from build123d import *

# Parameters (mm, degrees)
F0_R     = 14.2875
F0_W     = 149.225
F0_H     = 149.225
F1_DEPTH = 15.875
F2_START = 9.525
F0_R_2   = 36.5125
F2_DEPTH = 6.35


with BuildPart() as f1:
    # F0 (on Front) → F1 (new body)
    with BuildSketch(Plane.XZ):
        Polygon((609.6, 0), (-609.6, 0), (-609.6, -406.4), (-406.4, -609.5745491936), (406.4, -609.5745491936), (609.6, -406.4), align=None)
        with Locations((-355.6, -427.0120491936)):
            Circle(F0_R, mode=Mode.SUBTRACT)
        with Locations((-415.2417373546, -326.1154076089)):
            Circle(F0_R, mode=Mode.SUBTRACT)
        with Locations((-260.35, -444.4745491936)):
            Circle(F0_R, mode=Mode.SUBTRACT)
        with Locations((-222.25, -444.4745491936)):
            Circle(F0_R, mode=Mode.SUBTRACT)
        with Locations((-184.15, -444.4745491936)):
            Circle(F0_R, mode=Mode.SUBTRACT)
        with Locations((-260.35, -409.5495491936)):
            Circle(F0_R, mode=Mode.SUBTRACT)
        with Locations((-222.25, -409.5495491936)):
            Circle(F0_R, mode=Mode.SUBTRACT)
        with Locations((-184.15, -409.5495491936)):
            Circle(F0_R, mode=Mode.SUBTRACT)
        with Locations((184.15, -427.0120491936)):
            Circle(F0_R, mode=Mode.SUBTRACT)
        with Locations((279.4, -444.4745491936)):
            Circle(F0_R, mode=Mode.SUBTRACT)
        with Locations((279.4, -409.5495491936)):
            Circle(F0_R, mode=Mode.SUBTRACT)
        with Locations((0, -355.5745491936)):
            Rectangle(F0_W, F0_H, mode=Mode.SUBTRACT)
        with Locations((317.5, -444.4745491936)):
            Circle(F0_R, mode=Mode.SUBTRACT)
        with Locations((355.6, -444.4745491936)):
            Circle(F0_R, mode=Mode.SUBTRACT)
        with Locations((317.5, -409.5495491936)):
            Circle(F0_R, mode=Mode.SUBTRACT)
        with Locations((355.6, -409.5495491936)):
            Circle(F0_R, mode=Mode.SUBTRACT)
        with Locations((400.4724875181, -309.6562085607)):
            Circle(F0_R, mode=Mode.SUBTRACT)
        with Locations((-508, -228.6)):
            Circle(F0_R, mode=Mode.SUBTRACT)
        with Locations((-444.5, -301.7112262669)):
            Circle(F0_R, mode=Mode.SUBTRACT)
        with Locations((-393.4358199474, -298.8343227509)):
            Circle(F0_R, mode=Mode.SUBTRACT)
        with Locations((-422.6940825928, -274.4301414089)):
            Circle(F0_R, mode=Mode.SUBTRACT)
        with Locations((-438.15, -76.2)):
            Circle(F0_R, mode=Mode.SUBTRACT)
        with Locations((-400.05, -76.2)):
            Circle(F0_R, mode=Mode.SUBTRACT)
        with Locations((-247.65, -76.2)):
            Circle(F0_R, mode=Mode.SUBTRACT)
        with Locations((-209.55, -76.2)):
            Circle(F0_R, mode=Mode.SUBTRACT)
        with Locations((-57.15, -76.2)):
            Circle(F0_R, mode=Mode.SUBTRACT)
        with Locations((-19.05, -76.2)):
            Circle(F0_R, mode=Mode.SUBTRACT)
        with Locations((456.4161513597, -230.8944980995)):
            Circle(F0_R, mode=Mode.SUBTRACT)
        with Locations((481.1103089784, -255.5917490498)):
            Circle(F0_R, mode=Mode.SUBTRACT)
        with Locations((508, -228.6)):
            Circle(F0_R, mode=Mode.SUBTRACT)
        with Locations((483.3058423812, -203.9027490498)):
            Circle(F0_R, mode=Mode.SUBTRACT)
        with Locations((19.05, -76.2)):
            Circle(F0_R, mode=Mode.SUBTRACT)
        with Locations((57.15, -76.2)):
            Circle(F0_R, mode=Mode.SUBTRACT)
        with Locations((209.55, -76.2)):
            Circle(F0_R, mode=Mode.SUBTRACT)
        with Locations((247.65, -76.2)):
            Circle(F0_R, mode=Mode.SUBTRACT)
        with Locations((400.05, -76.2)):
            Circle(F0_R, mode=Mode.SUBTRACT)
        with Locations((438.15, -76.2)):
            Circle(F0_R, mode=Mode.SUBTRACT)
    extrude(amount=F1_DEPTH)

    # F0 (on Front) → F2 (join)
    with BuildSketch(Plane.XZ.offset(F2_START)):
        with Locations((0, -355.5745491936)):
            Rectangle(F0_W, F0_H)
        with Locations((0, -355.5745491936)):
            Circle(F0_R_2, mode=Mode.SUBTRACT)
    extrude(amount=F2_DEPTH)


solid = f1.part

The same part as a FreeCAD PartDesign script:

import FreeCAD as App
import Part
import Sketcher

V = App.Vector
Q = App.Units.Quantity


def add_polygon(sketch, points):
    """Adds a closed chain of lines whose ends are joined by coincident constraints."""
    first, n = sketch.GeometryCount, len(points)
    for a, b in zip(points, points[1:] + points[:1]):
        sketch.addGeometry(Part.LineSegment(App.Vector(*a, 0), App.Vector(*b, 0)), False)
    for i in range(n):
        sketch.addConstraint(Sketcher.Constraint("Coincident", first + i, 2, first + (i + 1) % n, 1))

doc = App.newDocument("Part")
params = doc.addObject("Spreadsheet::Sheet", "Params")
for row, (alias, value) in enumerate([
    ("sketch1_width", "48 in"),
    ("sketch1_width2", "32 in"),
    ("sketch1_height", "16 in"),
    ("sketch1_diameter", "1.125 in"),
    ("sketch1_width3", "5.875 in"),
    ("pad1_length", "0.625 in"),
    ("sketch2_diameter", "2.875 in"),
    ("sketch2_width", "5.875 in"),
    ("pad2_length", "0.25 in"),
], start=1):
    params.set(f"A{row}", alias)
    params.set(f"B{row}", "=" + value)
    params.setAlias(f"B{row}", alias)

body = doc.addObject("PartDesign::Body", "Body")

sketch1 = body.newObject("Sketcher::SketchObject", "Sketch")
sketch1.AttachmentSupport = (doc.getObject("XZ_Plane"), [""])
sketch1.MapMode = "FlatFace"
add_polygon(sketch1, [(610, 0), (-610, 0), (-610, -406), (-406, -610), (406, -610), (610, -406)])
sketch1.addGeometry(Part.Circle(V(-356, -427, 0), V(0, 0, 1), 14), False)
sketch1.addGeometry(Part.Circle(V(-260, -444, 0), V(0, 0, 1), 14), False)
sketch1.addGeometry(Part.Circle(V(-222, -444, 0), V(0, 0, 1), 14), False)
sketch1.addGeometry(Part.Circle(V(-184, -444, 0), V(0, 0, 1), 14), False)
sketch1.addGeometry(Part.Circle(V(-260, -410, 0), V(0, 0, 1), 14), False)
sketch1.addGeometry(Part.Circle(V(-222, -410, 0), V(0, 0, 1), 14), False)
sketch1.addGeometry(Part.Circle(V(-184, -410, 0), V(0, 0, 1), 14), False)
sketch1.addGeometry(Part.Circle(V(-415, -326, 0), V(0, 0, 1), 14), False)
sketch1.addGeometry(Part.Circle(V(-444, -302, 0), V(0, 0, 1), 14), False)
sketch1.addGeometry(Part.Circle(V(-393, -299, 0), V(0, 0, 1), 14), False)
sketch1.addGeometry(Part.Circle(V(-423, -274, 0), V(0, 0, 1), 14), False)
sketch1.addGeometry(Part.Circle(V(184, -427, 0), V(0, 0, 1), 14), False)
sketch1.addGeometry(Part.Circle(V(279, -444, 0), V(0, 0, 1), 14), False)
sketch1.addGeometry(Part.Circle(V(318, -444, 0), V(0, 0, 1), 14), False)
sketch1.addGeometry(Part.Circle(V(356, -444, 0), V(0, 0, 1), 14), False)
sketch1.addGeometry(Part.Circle(V(279, -410, 0), V(0, 0, 1), 14), False)
sketch1.addGeometry(Part.Circle(V(318, -410, 0), V(0, 0, 1), 14), False)
sketch1.addGeometry(Part.Circle(V(356, -410, 0), V(0, 0, 1), 14), False)
add_polygon(sketch1, [(75, -430), (-75, -430), (-75, -281), (75, -281)])
sketch1.addGeometry(Part.Circle(V(400, -310, 0), V(0, 0, 1), 14), False)
sketch1.addGeometry(Part.Circle(V(-508, -229, 0), V(0, 0, 1), 14), False)
sketch1.addGeometry(Part.Circle(V(-438, -76, 0), V(0, 0, 1), 14), False)
sketch1.addGeometry(Part.Circle(V(-400, -76, 0), V(0, 0, 1), 14), False)
sketch1.addGeometry(Part.Circle(V(-248, -76, 0), V(0, 0, 1), 14), False)
sketch1.addGeometry(Part.Circle(V(-210, -76, 0), V(0, 0, 1), 14), False)
sketch1.addGeometry(Part.Circle(V(-57, -76, 0), V(0, 0, 1), 14), False)
sketch1.addGeometry(Part.Circle(V(-19, -76, 0), V(0, 0, 1), 14), False)
sketch1.addGeometry(Part.Circle(V(481, -256, 0), V(0, 0, 1), 14), False)
sketch1.addGeometry(Part.Circle(V(456, -231, 0), V(0, 0, 1), 14), False)
sketch1.addGeometry(Part.Circle(V(508, -229, 0), V(0, 0, 1), 14), False)
sketch1.addGeometry(Part.Circle(V(483, -204, 0), V(0, 0, 1), 14), False)
sketch1.addGeometry(Part.Circle(V(19, -76, 0), V(0, 0, 1), 14), False)
sketch1.addGeometry(Part.Circle(V(57, -76, 0), V(0, 0, 1), 14), False)
sketch1.addGeometry(Part.Circle(V(210, -76, 0), V(0, 0, 1), 14), False)
sketch1.addGeometry(Part.Circle(V(248, -76, 0), V(0, 0, 1), 14), False)
sketch1.addGeometry(Part.Circle(V(400, -76, 0), V(0, 0, 1), 14), False)
sketch1.addGeometry(Part.Circle(V(438, -76, 0), V(0, 0, 1), 14), False)
sketch1.addConstraint(Sketcher.Constraint("Horizontal", 0))
sketch1.addConstraint(Sketcher.Constraint("Vertical", 1))
sketch1.addConstraint(Sketcher.Constraint("Horizontal", 3))
sketch1.addConstraint(Sketcher.Constraint("Vertical", 5))
sketch1.addConstraint(Sketcher.Constraint("Horizontal", 24))
sketch1.addConstraint(Sketcher.Constraint("Vertical", 25))
sketch1.addConstraint(Sketcher.Constraint("Horizontal", 26))
sketch1.addConstraint(Sketcher.Constraint("Vertical", 27))
sketch1.addConstraint(Sketcher.Constraint("Equal", 6, 7))
sketch1.addConstraint(Sketcher.Constraint("Equal", 7, 8))
sketch1.addConstraint(Sketcher.Constraint("Equal", 8, 9))
sketch1.addConstraint(Sketcher.Constraint("Equal", 9, 10))
sketch1.addConstraint(Sketcher.Constraint("Equal", 10, 11))
sketch1.addConstraint(Sketcher.Constraint("Equal", 11, 12))
sketch1.addConstraint(Sketcher.Constraint("Equal", 12, 13))
sketch1.addConstraint(Sketcher.Constraint("Equal", 13, 14))
sketch1.addConstraint(Sketcher.Constraint("Equal", 14, 15))
sketch1.addConstraint(Sketcher.Constraint("Equal", 15, 16))
sketch1.addConstraint(Sketcher.Constraint("Equal", 16, 17))
sketch1.addConstraint(Sketcher.Constraint("Equal", 17, 18))
sketch1.addConstraint(Sketcher.Constraint("Equal", 18, 19))
sketch1.addConstraint(Sketcher.Constraint("Equal", 19, 20))
sketch1.addConstraint(Sketcher.Constraint("Equal", 20, 21))
sketch1.addConstraint(Sketcher.Constraint("Equal", 21, 22))
sketch1.addConstraint(Sketcher.Constraint("Equal", 22, 23))
sketch1.addConstraint(Sketcher.Constraint("Equal", 23, 28))
sketch1.addConstraint(Sketcher.Constraint("Equal", 28, 29))
sketch1.addConstraint(Sketcher.Constraint("Equal", 29, 30))
sketch1.addConstraint(Sketcher.Constraint("Equal", 30, 31))
sketch1.addConstraint(Sketcher.Constraint("Equal", 31, 32))
sketch1.addConstraint(Sketcher.Constraint("Equal", 32, 33))
sketch1.addConstraint(Sketcher.Constraint("Equal", 33, 34))
sketch1.addConstraint(Sketcher.Constraint("Equal", 34, 35))
sketch1.addConstraint(Sketcher.Constraint("Equal", 35, 36))
sketch1.addConstraint(Sketcher.Constraint("Equal", 36, 37))
sketch1.addConstraint(Sketcher.Constraint("Equal", 37, 38))
sketch1.addConstraint(Sketcher.Constraint("Equal", 38, 39))
sketch1.addConstraint(Sketcher.Constraint("Equal", 39, 40))
sketch1.addConstraint(Sketcher.Constraint("Equal", 40, 41))
sketch1.addConstraint(Sketcher.Constraint("Equal", 41, 42))
sketch1.addConstraint(Sketcher.Constraint("Equal", 42, 43))
sketch1.addConstraint(Sketcher.Constraint("Equal", 43, 44))
sketch1.addConstraint(Sketcher.Constraint("Equal", 44, 45))
sketch1.addConstraint(Sketcher.Constraint("Symmetric", 0, 2, 5, 2, -1, 1))
sketch1.addConstraint(Sketcher.Constraint("Symmetric", 29, 3, 38, 3, -2))
sketch1.addConstraint(Sketcher.Constraint("Symmetric", 35, 3, 40, 3, -2))
sketch1.addConstraint(Sketcher.Constraint("Symmetric", 34, 3, 41, 3, -2))
sketch1.addConstraint(Sketcher.Constraint("Symmetric", 33, 3, 42, 3, -2))
sketch1.addConstraint(Sketcher.Constraint("Symmetric", 32, 3, 43, 3, -2))
sketch1.addConstraint(Sketcher.Constraint("Symmetric", 31, 3, 44, 3, -2))
sketch1.addConstraint(Sketcher.Constraint("Symmetric", 30, 3, 45, 3, -2))
sketch1.addConstraint(Sketcher.Constraint("Horizontal", 7, 3, 8, 3))
sketch1.addConstraint(Sketcher.Constraint("Horizontal", 8, 3, 9, 3))
sketch1.addConstraint(Sketcher.Constraint("Horizontal", 10, 3, 11, 3))
sketch1.addConstraint(Sketcher.Constraint("Horizontal", 11, 3, 12, 3))
sketch1.addConstraint(Sketcher.Constraint("Horizontal", 6, 3, 17, 3))
sketch1.addConstraint(Sketcher.Constraint("Horizontal", 9, 3, 18, 3))
sketch1.addConstraint(Sketcher.Constraint("Horizontal", 18, 3, 19, 3))
sketch1.addConstraint(Sketcher.Constraint("Horizontal", 19, 3, 20, 3))
sketch1.addConstraint(Sketcher.Constraint("Horizontal", 12, 3, 21, 3))
sketch1.addConstraint(Sketcher.Constraint("Horizontal", 21, 3, 22, 3))
sketch1.addConstraint(Sketcher.Constraint("Horizontal", 22, 3, 23, 3))
sketch1.addConstraint(Sketcher.Constraint("Horizontal", 30, 3, 31, 3))
sketch1.addConstraint(Sketcher.Constraint("Horizontal", 31, 3, 32, 3))
sketch1.addConstraint(Sketcher.Constraint("Horizontal", 32, 3, 33, 3))
sketch1.addConstraint(Sketcher.Constraint("Horizontal", 33, 3, 34, 3))
sketch1.addConstraint(Sketcher.Constraint("Horizontal", 34, 3, 35, 3))
sketch1.addConstraint(Sketcher.Constraint("Horizontal", 1, 2, 4, 2))
sketch1.addConstraint(Sketcher.Constraint("Vertical", 7, 3, 10, 3))
sketch1.addConstraint(Sketcher.Constraint("Vertical", 8, 3, 11, 3))
sketch1.addConstraint(Sketcher.Constraint("Vertical", 9, 3, 12, 3))
sketch1.addConstraint(Sketcher.Constraint("Vertical", 18, 3, 21, 3))
sketch1.addConstraint(Sketcher.Constraint("Vertical", 19, 3, 22, 3))
sketch1.addConstraint(Sketcher.Constraint("Vertical", 20, 3, 23, 3))
sketch1.addConstraint(Sketcher.Constraint("Equal", 26, 25))
sketch1.addConstraint(Sketcher.Constraint("Equal", 2, 4))
sketch1.addConstraint(Sketcher.Constraint("DistanceX", 0, 2, 0, 1, Q("48 in")))
sketch1.addConstraint(Sketcher.Constraint("DistanceX", 3, 1, 3, 2, Q("32 in")))
sketch1.addConstraint(Sketcher.Constraint("DistanceY", 1, 2, 1, 1, Q("16 in")))
sketch1.addConstraint(Sketcher.Constraint("Diameter", 6, Q("1.125 in")))
sketch1.addConstraint(Sketcher.Constraint("DistanceX", 6, 3, -1, 1, Q("14 in")))
sketch1.addConstraint(Sketcher.Constraint("DistanceX", -1, 1, 18, 3, Q("11 in")))
sketch1.addConstraint(Sketcher.Constraint("DistanceX", -1, 1, 20, 3, Q("14 in")))
sketch1.addConstraint(Sketcher.Constraint("DistanceX", 29, 3, -1, 1, Q("20 in")))
sketch1.addConstraint(Sketcher.Constraint("DistanceY", 29, 3, -1, 1, Q("9 in")))
sketch1.addConstraint(Sketcher.Constraint("DistanceY", 30, 3, -1, 1, Q("3 in")))
sketch1.addConstraint(Sketcher.Constraint("DistanceX", 7, 3, 9, 3, Q("3 in")))
sketch1.addConstraint(Sketcher.Constraint("DistanceX", 8, 3, 17, 3, Q("16 in")))
sketch1.addConstraint(Sketcher.Constraint("DistanceX", 31, 3, 32, 3, Q("6 in")))
sketch1.addConstraint(Sketcher.Constraint("DistanceX", 30, 3, 33, 3, Q("9 in")))
sketch1.addConstraint(Sketcher.Constraint("DistanceX", 33, 3, 34, 3, Q("6 in")))
sketch1.addConstraint(Sketcher.Constraint("DistanceX", 12, 3, 34, 3, Q("5 in")))
sketch1.addConstraint(Sketcher.Constraint("DistanceX", 32, 3, 35, 3, Q("9 in")))
sketch1.addConstraint(Sketcher.Constraint("DistanceX", 34, 3, 40, 3, Q("3 in")))
sketch1.addConstraint(Sketcher.Constraint("DistanceX", 14, 3, -1, 1, Q("17.5 in")))
sketch1.addConstraint(Sketcher.Constraint("DistanceX", -1, 1, 19, 3, Q("12.5 in")))
sketch1.addConstraint(Sketcher.Constraint("DistanceX", 7, 3, 8, 3, Q("1.5 in")))
sketch1.addConstraint(Sketcher.Constraint("DistanceX", 30, 3, 31, 3, Q("1.5 in")))
sketch1.addConstraint(Sketcher.Constraint("DistanceY", 2, 2, 7, 3, Q("6.5 in")))
sketch1.addConstraint(Sketcher.Constraint("DistanceX", 24, 2, 24, 1, Q("5.875 in")))
sketch1.addConstraint(Sketcher.Constraint("DistanceY", 17, 3, 26, 2, Q("5.75 in")))
sketch1.addConstraint(Sketcher.Constraint("Distance", 2, Q("11.313 in")))
sketch1.addConstraint(Sketcher.Constraint("DistanceX", 24, 2, -1, 1, Q("2.9375 in")))
sketch1.addConstraint(Sketcher.Constraint("DistanceY", 7, 3, 6, 3, Q("0.6875 in")))
sketch1.addConstraint(Sketcher.Constraint("DistanceY", 7, 3, 10, 3, Q("1.375 in")))
sketch1.addConstraint(Sketcher.Constraint("DistanceY", 36, 3, 39, 3, Q("2.035 in")))
sketch1.addConstraint(Sketcher.Constraint("DistanceX", 13, 3, -1, 1, Q("16.3480999 in")))
sketch1.addConstraint(Sketcher.Constraint("DistanceX", 16, 3, 15, 3, Q("1.1519001 in")))
sketch1.addConstraint(Sketcher.Constraint("DistanceY", 37, 3, -1, 1, Q("230.894498 mm")))
sketch1.addConstraint(Sketcher.Constraint("DistanceY", 23, 3, 36, 3, Q("153.9578 mm")))
sketch1.addConstraint(Sketcher.Constraint("DistanceX", 15, 3, -1, 1, Q("393.43582 mm")))
sketch1.addConstraint(Sketcher.Constraint("DistanceY", 16, 3, -1, 1, Q("274.430141 mm")))
sketch1.addConstraint(Sketcher.Constraint("DistanceY", 28, 3, -1, 1, Q("309.656209 mm")))
sketch1.addConstraint(Sketcher.Constraint("DistanceX", -1, 1, 36, 3, Q("481.110309 mm")))
sketch1.addConstraint(Sketcher.Constraint("DistanceX", -1, 1, 37, 3, Q("456.416151 mm")))
sketch1.addConstraint(Sketcher.Constraint("DistanceY", 6, 3, 13, 3, Q("100.896642 mm")))
sketch1.addConstraint(Sketcher.Constraint("DistanceY", 13, 3, 14, 3, Q("24.404181 mm")))
sketch1.addConstraint(Sketcher.Constraint("DistanceY", 15, 3, 16, 3, Q("24.404181 mm")))
sketch1.addConstraint(Sketcher.Constraint("DistanceX", 28, 3, 36, 3, Q("80.637821 mm")))
sketch1.addConstraint(Sketcher.Constraint("DistanceX", 37, 3, 39, 3, Q("26.889691 mm")))
sketch1.setExpression("Constraints[86]", "Params.sketch1_width")
sketch1.setExpression("Constraints[87]", "Params.sketch1_width2")
sketch1.setExpression("Constraints[88]", "Params.sketch1_height")
sketch1.setExpression("Constraints[89]", "Params.sketch1_diameter")
sketch1.setExpression("Constraints[109]", "Params.sketch1_width3")
pad1 = body.newObject("PartDesign::Pad", "Pad")
pad1.Profile = sketch1
pad1.setExpression("Length", "Params.pad1_length")

sketch2 = body.newObject("Sketcher::SketchObject", "Sketch001")
sketch2.AttachmentSupport = (doc.getObject("XZ_Plane"), [""])
sketch2.MapMode = "FlatFace"
sketch2.AttachmentOffset = App.Placement(V(0, 0, 0.375 * 25.4), App.Rotation())
add_polygon(sketch2, [(-75, -281), (-75, -430), (75, -430), (75, -281)])
sketch2.addGeometry(Part.Circle(V(0, -356, 0), V(0, 0, 1), 37), False)
sketch2.addConstraint(Sketcher.Constraint("Vertical", 0))
sketch2.addConstraint(Sketcher.Constraint("Horizontal", 1))
sketch2.addConstraint(Sketcher.Constraint("Vertical", 2))
sketch2.addConstraint(Sketcher.Constraint("Horizontal", 3))
sketch2.addConstraint(Sketcher.Constraint("PointOnObject", 4, 3, -2))
sketch2.addConstraint(Sketcher.Constraint("Equal", 3, 0))
sketch2.addConstraint(Sketcher.Constraint("Diameter", 4, Q("2.875 in")))
sketch2.addConstraint(Sketcher.Constraint("DistanceX", 1, 1, 1, 2, Q("5.875 in")))
sketch2.addConstraint(Sketcher.Constraint("DistanceX", 0, 2, -1, 1, Q("2.9375 in")))
sketch2.addConstraint(Sketcher.Constraint("DistanceY", 0, 2, 4, 3, Q("2.9375 in")))
sketch2.addConstraint(Sketcher.Constraint("DistanceY", 4, 3, -1, 1, Q("355.574549 mm")))
sketch2.setExpression("Constraints[10]", "Params.sketch2_diameter")
sketch2.setExpression("Constraints[11]", "Params.sketch2_width")
pad2 = body.newObject("PartDesign::Pad", "Pad001")
pad2.Profile = sketch2
pad2.setExpression("Length", "Params.pad2_length")

doc.recompute()
